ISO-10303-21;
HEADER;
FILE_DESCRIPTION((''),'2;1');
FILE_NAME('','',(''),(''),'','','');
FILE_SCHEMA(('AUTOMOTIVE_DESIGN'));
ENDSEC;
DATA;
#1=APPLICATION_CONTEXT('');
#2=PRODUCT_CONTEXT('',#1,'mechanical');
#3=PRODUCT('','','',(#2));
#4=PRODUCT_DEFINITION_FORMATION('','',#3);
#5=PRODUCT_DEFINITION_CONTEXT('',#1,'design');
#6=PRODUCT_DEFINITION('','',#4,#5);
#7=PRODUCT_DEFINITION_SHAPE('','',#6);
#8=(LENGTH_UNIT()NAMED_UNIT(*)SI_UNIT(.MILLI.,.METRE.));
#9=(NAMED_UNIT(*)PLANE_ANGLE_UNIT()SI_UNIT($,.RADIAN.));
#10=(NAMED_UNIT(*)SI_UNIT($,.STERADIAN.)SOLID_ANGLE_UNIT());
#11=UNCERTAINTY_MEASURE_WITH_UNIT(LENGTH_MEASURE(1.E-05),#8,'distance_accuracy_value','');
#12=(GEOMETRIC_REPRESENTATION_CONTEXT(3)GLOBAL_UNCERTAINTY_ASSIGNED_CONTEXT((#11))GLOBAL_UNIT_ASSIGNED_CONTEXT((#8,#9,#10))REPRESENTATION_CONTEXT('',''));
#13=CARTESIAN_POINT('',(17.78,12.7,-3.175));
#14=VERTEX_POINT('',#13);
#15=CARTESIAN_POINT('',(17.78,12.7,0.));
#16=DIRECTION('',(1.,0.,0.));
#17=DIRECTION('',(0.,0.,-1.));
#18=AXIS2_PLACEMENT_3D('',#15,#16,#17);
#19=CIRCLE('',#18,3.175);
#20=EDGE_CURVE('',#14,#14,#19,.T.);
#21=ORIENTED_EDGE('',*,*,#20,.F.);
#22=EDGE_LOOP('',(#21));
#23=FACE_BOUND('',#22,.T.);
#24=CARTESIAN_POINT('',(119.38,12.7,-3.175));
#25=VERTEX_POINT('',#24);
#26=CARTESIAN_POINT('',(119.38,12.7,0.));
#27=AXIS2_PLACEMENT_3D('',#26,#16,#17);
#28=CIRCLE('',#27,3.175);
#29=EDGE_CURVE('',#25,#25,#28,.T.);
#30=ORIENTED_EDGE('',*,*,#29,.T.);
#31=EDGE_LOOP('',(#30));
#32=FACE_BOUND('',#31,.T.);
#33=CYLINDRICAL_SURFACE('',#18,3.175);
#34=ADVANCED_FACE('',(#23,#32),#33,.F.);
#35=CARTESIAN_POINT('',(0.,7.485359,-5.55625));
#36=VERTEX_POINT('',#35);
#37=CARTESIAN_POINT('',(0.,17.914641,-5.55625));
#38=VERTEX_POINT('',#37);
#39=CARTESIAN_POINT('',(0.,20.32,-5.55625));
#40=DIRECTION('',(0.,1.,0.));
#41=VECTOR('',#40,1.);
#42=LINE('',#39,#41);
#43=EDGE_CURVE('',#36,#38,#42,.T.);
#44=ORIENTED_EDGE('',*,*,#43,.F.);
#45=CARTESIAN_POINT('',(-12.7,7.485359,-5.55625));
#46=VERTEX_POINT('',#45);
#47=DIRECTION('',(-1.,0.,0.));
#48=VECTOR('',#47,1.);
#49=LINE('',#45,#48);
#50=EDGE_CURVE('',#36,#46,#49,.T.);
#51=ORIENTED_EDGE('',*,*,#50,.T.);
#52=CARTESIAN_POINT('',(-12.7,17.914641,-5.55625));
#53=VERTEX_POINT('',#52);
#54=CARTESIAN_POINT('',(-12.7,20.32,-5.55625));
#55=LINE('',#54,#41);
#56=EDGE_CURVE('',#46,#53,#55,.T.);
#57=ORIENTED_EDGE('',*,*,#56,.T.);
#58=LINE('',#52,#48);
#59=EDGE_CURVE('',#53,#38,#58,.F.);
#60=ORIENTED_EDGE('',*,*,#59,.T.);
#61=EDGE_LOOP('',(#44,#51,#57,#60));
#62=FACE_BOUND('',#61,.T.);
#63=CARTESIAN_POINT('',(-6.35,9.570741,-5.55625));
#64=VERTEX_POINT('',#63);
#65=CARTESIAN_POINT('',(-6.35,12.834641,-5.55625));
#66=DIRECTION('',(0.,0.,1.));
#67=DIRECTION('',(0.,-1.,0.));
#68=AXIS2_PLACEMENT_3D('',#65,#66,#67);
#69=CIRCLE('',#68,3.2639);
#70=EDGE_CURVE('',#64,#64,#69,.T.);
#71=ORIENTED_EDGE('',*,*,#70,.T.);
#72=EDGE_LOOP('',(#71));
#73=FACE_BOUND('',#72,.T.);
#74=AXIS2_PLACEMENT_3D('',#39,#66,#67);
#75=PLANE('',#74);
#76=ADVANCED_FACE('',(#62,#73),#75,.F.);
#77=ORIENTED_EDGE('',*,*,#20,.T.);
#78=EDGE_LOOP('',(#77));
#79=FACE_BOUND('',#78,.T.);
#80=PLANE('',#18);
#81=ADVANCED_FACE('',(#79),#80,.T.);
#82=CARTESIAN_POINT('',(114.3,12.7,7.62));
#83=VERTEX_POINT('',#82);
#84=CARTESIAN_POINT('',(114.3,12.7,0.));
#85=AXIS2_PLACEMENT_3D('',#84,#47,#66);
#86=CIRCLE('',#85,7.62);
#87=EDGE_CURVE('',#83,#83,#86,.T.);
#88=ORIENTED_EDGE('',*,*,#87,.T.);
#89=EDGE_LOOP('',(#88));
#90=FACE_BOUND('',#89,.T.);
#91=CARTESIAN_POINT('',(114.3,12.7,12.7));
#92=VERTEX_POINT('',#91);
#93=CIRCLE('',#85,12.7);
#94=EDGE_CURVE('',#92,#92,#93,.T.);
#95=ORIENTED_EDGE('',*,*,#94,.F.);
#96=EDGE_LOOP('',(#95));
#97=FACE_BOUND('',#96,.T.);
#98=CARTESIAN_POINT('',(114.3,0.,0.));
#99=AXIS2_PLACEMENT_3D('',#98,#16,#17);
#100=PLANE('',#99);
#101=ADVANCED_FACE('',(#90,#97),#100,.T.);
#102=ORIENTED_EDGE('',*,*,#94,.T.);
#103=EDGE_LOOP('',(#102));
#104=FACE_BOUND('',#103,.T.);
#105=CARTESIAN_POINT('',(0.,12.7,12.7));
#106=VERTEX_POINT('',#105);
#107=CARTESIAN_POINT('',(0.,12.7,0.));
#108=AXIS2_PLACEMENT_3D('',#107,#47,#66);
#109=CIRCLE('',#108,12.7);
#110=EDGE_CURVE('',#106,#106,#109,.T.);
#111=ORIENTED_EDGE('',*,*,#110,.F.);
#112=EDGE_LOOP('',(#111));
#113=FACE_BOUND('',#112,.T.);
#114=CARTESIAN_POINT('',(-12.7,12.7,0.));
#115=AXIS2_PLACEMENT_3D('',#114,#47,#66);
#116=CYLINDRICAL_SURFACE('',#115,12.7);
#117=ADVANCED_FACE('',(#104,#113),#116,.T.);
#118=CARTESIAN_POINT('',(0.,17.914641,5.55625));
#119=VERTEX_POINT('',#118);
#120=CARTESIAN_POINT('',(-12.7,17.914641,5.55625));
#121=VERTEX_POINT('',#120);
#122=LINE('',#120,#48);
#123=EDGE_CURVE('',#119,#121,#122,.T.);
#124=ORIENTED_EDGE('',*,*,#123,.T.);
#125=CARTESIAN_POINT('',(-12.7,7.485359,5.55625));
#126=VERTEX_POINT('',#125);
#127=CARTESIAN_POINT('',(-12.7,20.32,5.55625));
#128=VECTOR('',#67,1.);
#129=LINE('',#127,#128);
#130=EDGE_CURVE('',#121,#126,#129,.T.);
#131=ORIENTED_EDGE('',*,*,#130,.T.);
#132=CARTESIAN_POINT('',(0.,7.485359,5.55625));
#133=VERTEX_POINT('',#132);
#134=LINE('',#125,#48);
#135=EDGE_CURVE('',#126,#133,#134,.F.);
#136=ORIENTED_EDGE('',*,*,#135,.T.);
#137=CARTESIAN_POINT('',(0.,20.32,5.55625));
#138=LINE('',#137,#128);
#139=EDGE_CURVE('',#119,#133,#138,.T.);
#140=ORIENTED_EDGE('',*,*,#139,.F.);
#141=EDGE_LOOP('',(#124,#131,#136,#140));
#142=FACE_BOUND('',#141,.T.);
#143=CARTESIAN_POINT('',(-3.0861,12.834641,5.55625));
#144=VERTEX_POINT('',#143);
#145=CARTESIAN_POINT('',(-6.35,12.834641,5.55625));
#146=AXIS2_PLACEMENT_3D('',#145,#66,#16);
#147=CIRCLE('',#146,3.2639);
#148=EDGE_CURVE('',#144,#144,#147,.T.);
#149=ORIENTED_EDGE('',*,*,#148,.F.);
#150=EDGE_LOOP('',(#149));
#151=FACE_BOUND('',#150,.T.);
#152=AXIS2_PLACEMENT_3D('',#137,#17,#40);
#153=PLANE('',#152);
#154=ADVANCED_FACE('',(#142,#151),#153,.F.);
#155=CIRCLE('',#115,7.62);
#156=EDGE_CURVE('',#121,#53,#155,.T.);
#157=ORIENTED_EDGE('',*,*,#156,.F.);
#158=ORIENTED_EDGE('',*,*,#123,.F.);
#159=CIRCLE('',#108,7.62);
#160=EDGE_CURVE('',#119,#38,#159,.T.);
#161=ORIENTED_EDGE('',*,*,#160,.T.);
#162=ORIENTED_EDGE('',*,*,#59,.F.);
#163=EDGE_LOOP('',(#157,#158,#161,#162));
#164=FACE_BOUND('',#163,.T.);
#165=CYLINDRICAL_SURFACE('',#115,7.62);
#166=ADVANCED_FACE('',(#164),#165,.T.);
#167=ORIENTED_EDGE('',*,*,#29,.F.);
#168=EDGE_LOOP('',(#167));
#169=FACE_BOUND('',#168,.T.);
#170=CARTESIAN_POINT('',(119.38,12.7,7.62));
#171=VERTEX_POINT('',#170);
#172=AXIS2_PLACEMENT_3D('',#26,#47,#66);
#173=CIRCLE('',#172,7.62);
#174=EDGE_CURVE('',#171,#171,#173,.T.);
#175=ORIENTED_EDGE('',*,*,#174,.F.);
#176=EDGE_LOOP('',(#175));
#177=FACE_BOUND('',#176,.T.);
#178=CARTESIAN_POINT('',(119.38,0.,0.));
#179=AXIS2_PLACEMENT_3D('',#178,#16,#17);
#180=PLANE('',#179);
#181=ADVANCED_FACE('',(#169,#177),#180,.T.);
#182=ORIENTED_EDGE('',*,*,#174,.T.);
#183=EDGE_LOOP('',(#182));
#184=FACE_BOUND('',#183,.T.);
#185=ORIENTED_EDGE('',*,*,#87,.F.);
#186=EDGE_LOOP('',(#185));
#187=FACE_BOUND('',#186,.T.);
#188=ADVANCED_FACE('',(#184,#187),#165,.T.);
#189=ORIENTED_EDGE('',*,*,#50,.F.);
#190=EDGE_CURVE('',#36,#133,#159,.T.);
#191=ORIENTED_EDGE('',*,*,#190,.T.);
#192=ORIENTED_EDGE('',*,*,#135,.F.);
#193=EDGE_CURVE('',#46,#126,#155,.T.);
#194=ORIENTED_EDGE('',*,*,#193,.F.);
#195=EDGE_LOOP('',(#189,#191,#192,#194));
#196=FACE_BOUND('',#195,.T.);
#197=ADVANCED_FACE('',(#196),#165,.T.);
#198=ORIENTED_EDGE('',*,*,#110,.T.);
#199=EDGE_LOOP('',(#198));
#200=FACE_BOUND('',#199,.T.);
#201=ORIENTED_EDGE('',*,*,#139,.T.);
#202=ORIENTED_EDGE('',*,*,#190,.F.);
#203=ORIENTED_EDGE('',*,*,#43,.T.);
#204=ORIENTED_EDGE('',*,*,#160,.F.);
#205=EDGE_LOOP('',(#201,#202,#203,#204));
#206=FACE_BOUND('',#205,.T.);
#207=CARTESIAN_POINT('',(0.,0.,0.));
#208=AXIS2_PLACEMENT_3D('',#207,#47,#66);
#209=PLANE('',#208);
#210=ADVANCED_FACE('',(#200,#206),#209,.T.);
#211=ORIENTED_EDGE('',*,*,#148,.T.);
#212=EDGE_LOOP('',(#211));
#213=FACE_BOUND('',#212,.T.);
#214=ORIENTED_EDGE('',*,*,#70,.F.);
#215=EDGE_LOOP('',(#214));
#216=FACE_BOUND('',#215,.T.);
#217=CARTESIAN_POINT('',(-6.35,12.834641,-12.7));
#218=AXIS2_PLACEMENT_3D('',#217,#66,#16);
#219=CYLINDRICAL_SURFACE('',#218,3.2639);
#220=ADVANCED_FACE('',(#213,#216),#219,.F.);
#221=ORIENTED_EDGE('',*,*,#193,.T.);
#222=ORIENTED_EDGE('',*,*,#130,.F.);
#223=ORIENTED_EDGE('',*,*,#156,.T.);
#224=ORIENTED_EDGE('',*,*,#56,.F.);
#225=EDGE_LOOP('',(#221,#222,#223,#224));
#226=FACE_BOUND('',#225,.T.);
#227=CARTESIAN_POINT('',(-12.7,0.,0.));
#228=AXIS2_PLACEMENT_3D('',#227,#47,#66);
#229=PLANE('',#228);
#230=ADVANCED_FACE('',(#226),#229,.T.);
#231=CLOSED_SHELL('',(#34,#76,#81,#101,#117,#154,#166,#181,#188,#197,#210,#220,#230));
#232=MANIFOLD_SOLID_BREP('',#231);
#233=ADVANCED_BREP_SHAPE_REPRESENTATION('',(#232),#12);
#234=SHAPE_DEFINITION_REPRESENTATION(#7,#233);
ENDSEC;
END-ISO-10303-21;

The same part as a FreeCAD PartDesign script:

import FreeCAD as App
import Part
import Sketcher
from FreeCAD import Vector
Q = App.Units.Quantity


def add_polygon(sketch, points):
    """Adds a closed chain of lines whose ends are joined by coincident constraints."""
    first, n = sketch.GeometryCount, len(points)
    for a, b in zip(points, points[1:] + points[:1]):
        sketch.addGeometry(Part.LineSegment(App.Vector(*a, 0), App.Vector(*b, 0)), False)
    for i in range(n):
        sketch.addConstraint(Sketcher.Constraint("Coincident", first + i, 2, first + (i + 1) % n, 1))

doc = App.newDocument("Part")
params = doc.addObject("Spreadsheet::Sheet", "Params")
for row, (alias, value) in enumerate([
    ("sketch1_width", "5.2 in"),
    ("sketch1_width2", "0.2 in"),
    ("sketch1_width3", "4.5 in"),
    ("sketch1_height", "0.3 in"),
    ("revolution_angle", "360 deg"),
    ("sketch2_diameter", "0.25 in"),
    ("pocket1_length", "4 in"),
    ("sketch3_height", "0.1 in"),
    ("pocket2_length", "0.5 in"),
    ("sketch4_diameter", "0.257 in"),
], start=1):
    params.set(f"A{row}", alias)
    params.set(f"B{row}", "=" + value)
    params.setAlias(f"B{row}", alias)

body = doc.addObject("PartDesign::Body", "Body")

# Sketch on XY plane
sketch1 = doc.addObject("Sketcher::SketchObject", "Sketch")
body.addObject(sketch1)
sketch1.AttachmentSupport = (doc.XY_Plane, [""])
sketch1.MapMode = "FlatFace"
add_polygon(sketch1, [(-13, 20), (-13, 13), (119, 13), (119, 20), (114, 20), (114, 25), (0, 25), (0, 20)])  # lines 0-7
sketch1.addGeometry(Part.LineSegment(Vector(-13, 13, 0), Vector(119, 13, 0)), True)  # axis
sketch1.addConstraint(Sketcher.Constraint("Vertical", 0))
sketch1.addConstraint(Sketcher.Constraint("Horizontal", 1))
sketch1.addConstraint(Sketcher.Constraint("Vertical", 2))
sketch1.addConstraint(Sketcher.Constraint("Horizontal", 3))
sketch1.addConstraint(Sketcher.Constraint("Vertical", 4))
sketch1.addConstraint(Sketcher.Constraint("Horizontal", 5))
sketch1.addConstraint(Sketcher.Constraint("Vertical", 6))
sketch1.addConstraint(Sketcher.Constraint("Horizontal", 7))
sketch1.addConstraint(Sketcher.Constraint("Horizontal", 8))
sketch1.addConstraint(Sketcher.Constraint("Coincident", 8, 1, 0, 2))
sketch1.addConstraint(Sketcher.Constraint("PointOnObject", 5, 2, -2))
sketch1.addConstraint(Sketcher.Constraint("Horizontal", 3, 2, 6, 2))
sketch1.addConstraint(Sketcher.Constraint("Vertical", 2, 2, 8, 2))
sketch1.addConstraint(Sketcher.Constraint("Equal", 3, 4))
sketch1.addConstraint(Sketcher.Constraint("DistanceX", 1, 1, 1, 2, Q("5.2 in")))
sketch1.addConstraint(Sketcher.Constraint("DistanceX", 3, 2, 3, 1, Q("0.2 in")))
sketch1.addConstraint(Sketcher.Constraint("DistanceX", 5, 2, 5, 1, Q("4.5 in")))
sketch1.addConstraint(Sketcher.Constraint("DistanceY", 0, 2, 0, 1, Q("0.3 in")))
sketch1.addConstraint(Sketcher.Constraint("DistanceY", -1, 1, 4, 2, Q("1 in")))
sketch1.setExpression("Constraints[22]", "Params.sketch1_width")
sketch1.setExpression("Constraints[23]", "Params.sketch1_width2")
sketch1.setExpression("Constraints[24]", "Params.sketch1_width3")
sketch1.setExpression("Constraints[25]", "Params.sketch1_height")
revolution = doc.addObject("PartDesign::Revolution", "Revolution")
body.addObject(revolution)
revolution.Profile = sketch1
revolution.ReferenceAxis = (sketch1, ["Axis0"])
revolution.setExpression("Angle", "Params.revolution_angle")

# Sketch on YZ plane
sketch2 = doc.addObject("Sketcher::SketchObject", "Sketch001")
body.addObject(sketch2)
sketch2.AttachmentSupport = (doc.YZ_Plane, [""])
sketch2.MapMode = "FlatFace"
sketch2.AttachmentOffset = App.Placement(Vector(0, 0, 4.7 * 25.4), App.Rotation())
sketch2.addGeometry(Part.Circle(Vector(12.7, 0, 0), Vector(0, 0, 1), 3.2), False)
sketch2.addConstraint(Sketcher.Constraint("PointOnObject", 0, 3, -1))
sketch2.addConstraint(Sketcher.Constraint("Diameter", 0, Q("0.25 in")))
sketch2.addConstraint(Sketcher.Constraint("DistanceX", -1, 1, 0, 3, Q("0.5 in")))
sketch2.setExpression("Constraints[1]", "Params.sketch2_diameter")
pocket1 = doc.addObject("PartDesign::Pocket", "Pocket")
body.addObject(pocket1)
pocket1.Profile = sketch2
pocket1.setExpression("Length", "Params.pocket1_length")

# Sketch on YZ plane
sketch3 = doc.addObject("Sketcher::SketchObject", "Sketch002")
body.addObject(sketch3)
sketch3.AttachmentSupport = (doc.YZ_Plane, [""])
sketch3.MapMode = "FlatFace"
sketch3.AttachmentOffset = App.Placement(Vector(0, 0, -0.5 * 25.4), App.Rotation())
add_polygon(sketch3, [(20.3, -8.1), (5.5, -8.1), (5.5, -5.6), (20.3, -5.6)])  # lines 0-3
add_polygon(sketch3, [(20.3, 5.6), (6.1, 5.6), (6.1, 8.1), (20.3, 8.1)])  # lines 4-7
sketch3.addConstraint(Sketcher.Constraint("Horizontal", 0))
sketch3.addConstraint(Sketcher.Constraint("Vertical", 1))
sketch3.addConstraint(Sketcher.Constraint("Horizontal", 2))
sketch3.addConstraint(Sketcher.Constraint("Vertical", 3))
sketch3.addConstraint(Sketcher.Constraint("Horizontal", 4))
sketch3.addConstraint(Sketcher.Constraint("Vertical", 5))
sketch3.addConstraint(Sketcher.Constraint("Horizontal", 6))
sketch3.addConstraint(Sketcher.Constraint("Vertical", 7))
sketch3.addConstraint(Sketcher.Constraint("Symmetric", 3, 2, 6, 2, -1))
sketch3.addConstraint(Sketcher.Constraint("Equal", 3, 5))
sketch3.addConstraint(Sketcher.Constraint("DistanceY", 1, 1, 1, 2, Q("0.1 in")))
sketch3.addConstraint(Sketcher.Constraint("DistanceX", -1, 1, 2, 2, Q("0.8 in")))
sketch3.addConstraint(Sketcher.Constraint("DistanceY", 1, 2, -1, 1, Q("0.21875 in")))
sketch3.addConstraint(Sketcher.Constraint("DistanceX", 0, 2, 0, 1, 14.827997))
sketch3.addConstraint(Sketcher.Constraint("DistanceX", 4, 2, 4, 1, 14.256172))
sketch3.setExpression("Constraints[18]", "Params.sketch3_height")
pocket2 = doc.addObject("PartDesign::Pocket", "Pocket001")
body.addObject(pocket2)
pocket2.Profile = sketch3
pocket2.setExpression("Length", "Params.pocket2_length")
pocket2.Reversed = True

# Sketch on XY plane
sketch4 = doc.addObject("Sketcher::SketchObject", "Sketch003")
body.addObject(sketch4)
sketch4.AttachmentSupport = (doc.XY_Plane, [""])
sketch4.MapMode = "FlatFace"
sketch4.AttachmentOffset = App.Placement(Vector(0, 0, 0.21875 * 25.4), App.Rotation())
sketch4.addGeometry(Part.Circle(Vector(-6.3, 12.8, 0), Vector(0, 0, 1), 3.3), False)
sketch4.addConstraint(Sketcher.Constraint("Diameter", 0, Q("0.257 in")))
sketch4.addConstraint(Sketcher.Constraint("DistanceX", 0, 3, -1, 1, Q("0.25 in")))
sketch4.addConstraint(Sketcher.Constraint("DistanceY", -1, 1, 0, 3, 12.834641))
sketch4.setExpression("Constraints[0]", "Params.sketch4_diameter")
pocket3 = doc.addObject("PartDesign::Pocket", "Pocket002")
body.addObject(pocket3)
pocket3.Profile = sketch4
pocket3.Type = "ThroughAll"

doc.recompute()
